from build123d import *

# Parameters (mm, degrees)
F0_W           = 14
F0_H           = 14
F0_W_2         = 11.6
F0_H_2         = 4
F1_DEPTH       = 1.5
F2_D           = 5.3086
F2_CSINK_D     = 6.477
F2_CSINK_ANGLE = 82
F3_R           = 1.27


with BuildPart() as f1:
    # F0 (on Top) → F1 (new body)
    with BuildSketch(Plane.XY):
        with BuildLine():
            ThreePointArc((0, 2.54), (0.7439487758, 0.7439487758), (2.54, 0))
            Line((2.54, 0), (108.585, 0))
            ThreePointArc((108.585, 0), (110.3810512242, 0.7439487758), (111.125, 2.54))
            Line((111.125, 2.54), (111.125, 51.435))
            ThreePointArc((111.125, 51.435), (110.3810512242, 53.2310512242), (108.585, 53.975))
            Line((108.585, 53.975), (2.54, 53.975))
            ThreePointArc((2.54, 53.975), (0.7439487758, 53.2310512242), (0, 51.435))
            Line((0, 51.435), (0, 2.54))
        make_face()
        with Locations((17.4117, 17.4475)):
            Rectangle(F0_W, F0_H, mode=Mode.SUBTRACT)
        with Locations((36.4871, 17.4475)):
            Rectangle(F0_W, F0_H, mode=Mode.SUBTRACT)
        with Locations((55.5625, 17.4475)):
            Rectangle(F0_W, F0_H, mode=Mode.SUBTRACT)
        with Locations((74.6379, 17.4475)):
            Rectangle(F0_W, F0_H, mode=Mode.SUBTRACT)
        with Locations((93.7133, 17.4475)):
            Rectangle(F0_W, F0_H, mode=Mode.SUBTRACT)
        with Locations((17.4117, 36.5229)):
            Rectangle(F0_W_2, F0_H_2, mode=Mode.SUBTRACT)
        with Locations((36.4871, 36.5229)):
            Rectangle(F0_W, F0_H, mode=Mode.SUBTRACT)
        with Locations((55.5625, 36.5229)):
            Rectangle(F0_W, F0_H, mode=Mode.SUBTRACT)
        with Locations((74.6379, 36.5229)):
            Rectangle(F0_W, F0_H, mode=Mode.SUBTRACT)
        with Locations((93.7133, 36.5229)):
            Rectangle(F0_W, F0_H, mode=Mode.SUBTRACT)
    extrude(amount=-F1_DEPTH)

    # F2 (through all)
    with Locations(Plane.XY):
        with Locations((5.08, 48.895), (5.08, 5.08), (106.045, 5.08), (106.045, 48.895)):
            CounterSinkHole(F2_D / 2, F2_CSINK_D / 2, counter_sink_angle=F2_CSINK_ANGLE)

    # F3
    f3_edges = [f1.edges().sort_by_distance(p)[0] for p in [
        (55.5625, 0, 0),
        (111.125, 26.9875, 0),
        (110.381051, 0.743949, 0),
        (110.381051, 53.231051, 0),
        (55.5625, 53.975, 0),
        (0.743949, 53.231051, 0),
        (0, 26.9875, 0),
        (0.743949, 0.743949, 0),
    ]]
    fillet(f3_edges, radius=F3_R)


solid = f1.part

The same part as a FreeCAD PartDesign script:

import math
import FreeCAD as App
import Part
import Sketcher

V = App.Vector
Q = App.Units.Quantity


def edges_at(feature, points):
    """Names of the edges that pass closest to the given points."""
    edges = feature.Shape.Edges
    near = lambda p: min(range(len(edges)), key=lambda i: edges[i].distToShape(Part.Vertex(*p))[0])
    return sorted({f"Edge{near(p) + 1}" for p in points})


def add_polygon(sketch, points):
    """Adds a closed chain of lines whose ends are joined by coincident constraints."""
    first, n = sketch.GeometryCount, len(points)
    for a, b in zip(points, points[1:] + points[:1]):
        sketch.addGeometry(Part.LineSegment(App.Vector(*a, 0), App.Vector(*b, 0)), False)
    for i in range(n):
        sketch.addConstraint(Sketcher.Constraint("Coincident", first + i, 2, first + (i + 1) % n, 1))

doc = App.newDocument("Part")
body = doc.addObject("PartDesign::Body", "Body")

# Sketch on XY plane
sketch1 = doc.addObject("Sketcher::SketchObject", "Sketch")
body.addObject(sketch1)
sketch1.AttachmentSupport = (doc.XY_Plane, [""])
sketch1.MapMode = "FlatFace"
sketch1.addGeometry(Part.ArcOfCircle(Part.Circle(V(2.5, 2.5, 0), V(0, 0, 1), 2.5), math.radians(180), math.radians(270)), False)  # 0
sketch1.addGeometry(Part.LineSegment(V(2.5, 0, 0), V(108.6, 0, 0)), False)  # 1
sketch1.addGeometry(Part.ArcOfCircle(Part.Circle(V(108.6, 2.5, 0), V(0, 0, 1), 2.5), math.radians(-90), math.radians(0)), False)  # 2
sketch1.addGeometry(Part.LineSegment(V(111.1, 2.5, 0), V(111.1, 51.4, 0)), False)  # 3
sketch1.addGeometry(Part.ArcOfCircle(Part.Circle(V(108.6, 51.4, 0), V(0, 0, 1), 2.5), math.radians(0), math.radians(90)), False)  # 4
sketch1.addGeometry(Part.LineSegment(V(108.6, 54, 0), V(2.5, 54, 0)), False)  # 5
sketch1.addGeometry(Part.ArcOfCircle(Part.Circle(V(2.5, 51.4, 0), V(0, 0, 1), 2.5), math.radians(90), math.radians(180)), False)  # 6
sketch1.addGeometry(Part.LineSegment(V(0, 51.4, 0), V(0, 2.5, 0)), False)  # 7
add_polygon(sketch1, [(24.4, 10.4), (10.4, 10.4), (10.4, 24.4), (24.4, 24.4)])  # lines 8-11
add_polygon(sketch1, [(43.5, 10.4), (29.5, 10.4), (29.5, 24.4), (43.5, 24.4)])  # lines 12-15
add_polygon(sketch1, [(62.6, 10.4), (48.6, 10.4), (48.6, 24.4), (62.6, 24.4)])  # lines 16-19
add_polygon(sketch1, [(81.6, 10.4), (67.6, 10.4), (67.6, 24.4), (81.6, 24.4)])  # lines 20-23
add_polygon(sketch1, [(100.7, 10.4), (86.7, 10.4), (86.7, 24.4), (100.7, 24.4)])  # lines 24-27
add_polygon(sketch1, [(23.2, 34.5), (11.6, 34.5), (11.6, 38.5), (23.2, 38.5)])  # lines 28-31
add_polygon(sketch1, [(43.5, 29.5), (29.5, 29.5), (29.5, 43.5), (43.5, 43.5)])  # lines 32-35
add_polygon(sketch1, [(62.6, 29.5), (48.6, 29.5), (48.6, 43.5), (62.6, 43.5)])  # lines 36-39
add_polygon(sketch1, [(81.6, 29.5), (67.6, 29.5), (67.6, 43.5), (81.6, 43.5)])  # lines 40-43
add_polygon(sketch1, [(100.7, 29.5), (86.7, 29.5), (86.7, 43.5), (100.7, 43.5)])  # lines 44-47
sketch1.addConstraint(Sketcher.Constraint("Tangent", 0, 2, 1, 1))
sketch1.addConstraint(Sketcher.Constraint("Tangent", 1, 2, 2, 1))
sketch1.addConstraint(Sketcher.Constraint("Tangent", 2, 2, 3, 1))
sketch1.addConstraint(Sketcher.Constraint("Tangent", 3, 2, 4, 1))
sketch1.addConstraint(Sketcher.Constraint("Tangent", 4, 2, 5, 1))
sketch1.addConstraint(Sketcher.Constraint("Tangent", 5, 2, 6, 1))
sketch1.addConstraint(Sketcher.Constraint("Tangent", 6, 2, 7, 1))
sketch1.addConstraint(Sketcher.Constraint("Tangent", 7, 2, 0, 1))
sketch1.addConstraint(Sketcher.Constraint("Horizontal", 1))
sketch1.addConstraint(Sketcher.Constraint("Vertical", 3))
sketch1.addConstraint(Sketcher.Constraint("Horizontal", 5))
sketch1.addConstraint(Sketcher.Constraint("Vertical", 7))
sketch1.addConstraint(Sketcher.Constraint("Horizontal", 8))
sketch1.addConstraint(Sketcher.Constraint("Vertical", 9))
sketch1.addConstraint(Sketcher.Constraint("Horizontal", 10))
sketch1.addConstraint(Sketcher.Constraint("Vertical", 11))
sketch1.addConstraint(Sketcher.Constraint("Horizontal", 12))
sketch1.addConstraint(Sketcher.Constraint("Vertical", 13))
sketch1.addConstraint(Sketcher.Constraint("Horizontal", 14))
sketch1.addConstraint(Sketcher.Constraint("Vertical", 15))
sketch1.addConstraint(Sketcher.Constraint("Horizontal", 16))
sketch1.addConstraint(Sketcher.Constraint("Vertical", 17))
sketch1.addConstraint(Sketcher.Constraint("Horizontal", 18))
sketch1.addConstraint(Sketcher.Constraint("Vertical", 19))
sketch1.addConstraint(Sketcher.Constraint("Horizontal", 20))
sketch1.addConstraint(Sketcher.Constraint("Vertical", 21))
sketch1.addConstraint(Sketcher.Constraint("Horizontal", 22))
sketch1.addConstraint(Sketcher.Constraint("Vertical", 23))
sketch1.addConstraint(Sketcher.Constraint("Horizontal", 24))
sketch1.addConstraint(Sketcher.Constraint("Vertical", 25))
sketch1.addConstraint(Sketcher.Constraint("Horizontal", 26))
sketch1.addConstraint(Sketcher.Constraint("Vertical", 27))
sketch1.addConstraint(Sketcher.Constraint("Horizontal", 28))
sketch1.addConstraint(Sketcher.Constraint("Vertical", 29))
sketch1.addConstraint(Sketcher.Constraint("Horizontal", 30))
sketch1.addConstraint(Sketcher.Constraint("Vertical", 31))
sketch1.addConstraint(Sketcher.Constraint("Horizontal", 32))
sketch1.addConstraint(Sketcher.Constraint("Vertical", 33))
sketch1.addConstraint(Sketcher.Constraint("Horizontal", 34))
sketch1.addConstraint(Sketcher.Constraint("Vertical", 35))
sketch1.addConstraint(Sketcher.Constraint("Horizontal", 36))
sketch1.addConstraint(Sketcher.Constraint("Vertical", 37))
sketch1.addConstraint(Sketcher.Constraint("Horizontal", 38))
sketch1.addConstraint(Sketcher.Constraint("Vertical", 39))
sketch1.addConstraint(Sketcher.Constraint("Horizontal", 40))
sketch1.addConstraint(Sketcher.Constraint("Vertical", 41))
sketch1.addConstraint(Sketcher.Constraint("Horizontal", 42))
sketch1.addConstraint(Sketcher.Constraint("Vertical", 43))
sketch1.addConstraint(Sketcher.Constraint("Horizontal", 44))
sketch1.addConstraint(Sketcher.Constraint("Vertical", 45))
sketch1.addConstraint(Sketcher.Constraint("Horizontal", 46))
sketch1.addConstraint(Sketcher.Constraint("Vertical", 47))
sketch1.addConstraint(Sketcher.Constraint("Equal", 0, 2))
sketch1.addConstraint(Sketcher.Constraint("Equal", 2, 4))
sketch1.addConstraint(Sketcher.Constraint("Equal", 4, 6))
sketch1.addConstraint(Sketcher.Constraint("PointOnObject", 0, 2, -1))
sketch1.addConstraint(Sketcher.Constraint("PointOnObject", 6, 2, -2))
sketch1.addConstraint(Sketcher.Constraint("Horizontal", 11, 2, 12, 2))
sketch1.addConstraint(Sketcher.Constraint("Horizontal", 10, 2, 13, 2))
sketch1.addConstraint(Sketcher.Constraint("Horizontal", 15, 2, 16, 2))
sketch1.addConstraint(Sketcher.Constraint("Horizontal", 14, 2, 17, 2))
sketch1.addConstraint(Sketcher.Constraint("Horizontal", 19, 2, 20, 2))
sketch1.addConstraint(Sketcher.Constraint("Horizontal", 18, 2, 21, 2))
sketch1.addConstraint(Sketcher.Constraint("Horizontal", 23, 2, 24, 2))
sketch1.addConstraint(Sketcher.Constraint("Horizontal", 22, 2, 25, 2))
sketch1.addConstraint(Sketcher.Constraint("Horizontal", 35, 2, 36, 2))
sketch1.addConstraint(Sketcher.Constraint("Horizontal", 34, 2, 37, 2))
sketch1.addConstraint(Sketcher.Constraint("Horizontal", 39, 2, 40, 2))
sketch1.addConstraint(Sketcher.Constraint("Horizontal", 38, 2, 41, 2))
sketch1.addConstraint(Sketcher.Constraint("Horizontal", 43, 2, 44, 2))
sketch1.addConstraint(Sketcher.Constraint("Horizontal", 42, 2, 45, 2))
sketch1.addConstraint(Sketcher.Constraint("Vertical", 13, 2, 32, 2))
sketch1.addConstraint(Sketcher.Constraint("Vertical", 15, 2, 34, 2))
sketch1.addConstraint(Sketcher.Constraint("Vertical", 17, 2, 36, 2))
sketch1.addConstraint(Sketcher.Constraint("Vertical", 19, 2, 38, 2))
sketch1.addConstraint(Sketcher.Constraint("Vertical", 21, 2, 40, 2))
sketch1.addConstraint(Sketcher.Constraint("Vertical", 23, 2, 42, 2))
sketch1.addConstraint(Sketcher.Constraint("Vertical", 25, 2, 44, 2))
sketch1.addConstraint(Sketcher.Constraint("Vertical", 27, 2, 46, 2))
sketch1.addConstraint(Sketcher.Constraint("Equal", 10, 12))
sketch1.addConstraint(Sketcher.Constraint("Equal", 14, 16))
sketch1.addConstraint(Sketcher.Constraint("Equal", 18, 20))
sketch1.addConstraint(Sketcher.Constraint("Equal", 22, 24))
sketch1.addConstraint(Sketcher.Constraint("Equal", 46, 9))
sketch1.addConstraint(Sketcher.Constraint("Equal", 27, 33))
sketch1.addConstraint(Sketcher.Constraint("Radius", 0, Q("0.1 in")))
sketch1.addConstraint(Sketcher.Constraint("DistanceX", 1, 1, 1, 2, Q("4.175 in")))
sketch1.addConstraint(Sketcher.Constraint("DistanceY", 3, 1, 3, 2, Q("1.925 in")))
sketch1.addConstraint(Sketcher.Constraint("DistanceY", 9, 2, 6, 3, Q("1.0625 in")))
sketch1.addConstraint(Sketcher.Constraint("DistanceX", 8, 2, 12, 2, Q("0.751 in")))
sketch1.addConstraint(Sketcher.Constraint("DistanceX", 12, 2, 16, 2, Q("0.751 in")))
sketch1.addConstraint(Sketcher.Constraint("DistanceX", 16, 2, 20, 2, Q("0.751 in")))
sketch1.addConstraint(Sketcher.Constraint("DistanceX", 20, 2, 24, 2, Q("0.751 in")))
sketch1.addConstraint(Sketcher.Constraint("DistanceY", 13, 2, 33, 2, Q("0.751 in")))
sketch1.addConstraint(Sketcher.Constraint("DistanceX", 8, 2, 8, 1, Q("14 mm")))
sketch1.addConstraint(Sketcher.Constraint("DistanceX", 28, 2, 28, 1, Q("11.6 mm")))
sketch1.addConstraint(Sketcher.Constraint("DistanceY", 29, 1, 29, 2, Q("4 mm")))
sketch1.addConstraint(Sketcher.Constraint("DistanceX", -1, 1, 8, 2, Q("10.4117 mm")))
sketch1.addConstraint(Sketcher.Constraint("DistanceX", -1, 1, 28, 2, Q("11.6117 mm")))
sketch1.addConstraint(Sketcher.Constraint("DistanceY", -1, 1, 28, 2, Q("34.5229 mm")))
pad1 = doc.addObject("PartDesign::Pad", "Pad")
body.addObject(pad1)
pad1.Profile = sketch1
pad1.Length = 1.5
pad1.Reversed = True

# Sketch on XY plane
sketch2 = doc.addObject("Sketcher::SketchObject", "Sketch001")
body.addObject(sketch2)
sketch2.AttachmentSupport = (doc.XY_Plane, [""])
sketch2.MapMode = "FlatFace"
sketch2.addGeometry(Part.Circle(V(5.1, 48.9, 0), V(0, 0, 1), 2.7), False)
sketch2.addGeometry(Part.Circle(V(5.1, 5.1, 0), V(0, 0, 1), 2.7), False)
sketch2.addGeometry(Part.Circle(V(106, 5.1, 0), V(0, 0, 1), 2.7), False)
sketch2.addGeometry(Part.Circle(V(106, 48.9, 0), V(0, 0, 1), 2.7), False)
sketch2.addConstraint(Sketcher.Constraint("Equal", 0, 1))
sketch2.addConstraint(Sketcher.Constraint("Equal", 1, 2))
sketch2.addConstraint(Sketcher.Constraint("Equal", 2, 3))
sketch2.addConstraint(Sketcher.Constraint("Horizontal", 1, 3, 2, 3))
sketch2.addConstraint(Sketcher.Constraint("Horizontal", 0, 3, 3, 3))
sketch2.addConstraint(Sketcher.Constraint("Vertical", 0, 3, 1, 3))
sketch2.addConstraint(Sketcher.Constraint("Vertical", 2, 3, 3, 3))
sketch2.addConstraint(Sketcher.Constraint("Diameter", 0, Q("0.209 in")))
sketch2.addConstraint(Sketcher.Constraint("DistanceX", -1, 1, 0, 3, Q("0.2 in")))
sketch2.addConstraint(Sketcher.Constraint("DistanceY", -1, 1, 1, 3, Q("0.2 in")))
sketch2.addConstraint(Sketcher.Constraint("DistanceY", -1, 1, 0, 3, Q("1.925 in")))
sketch2.addConstraint(Sketcher.Constraint("DistanceX", -1, 1, 2, 3, Q("4.175 in")))
doc.recompute()
hole = doc.addObject("PartDesign::Hole", "Hole")
body.addObject(hole)
hole.Profile = sketch2
hole.ThreadType = "None"
hole.Diameter = Q("0.209 in")
hole.DepthType = "ThroughAll"
hole.HoleCutType = "Countersink"
hole.HoleCutDiameter = Q("0.255 in")
hole.HoleCutCountersinkAngle = 82
doc.recompute()

fillet = doc.addObject("PartDesign::Fillet", "Fillet")
body.addObject(fillet)
fillet.Base = (hole, edges_at(hole, [
    (55.562, 0, 0),
    (111.125, 26.988, 0),
    (110.381, 0.744, 0),
    (110.381, 53.231, 0),
    (55.562, 53.975, 0),
    (0.744, 53.231, 0),
    (0, 26.988, 0),
    (0.744, 0.744, 0),
]))
fillet.Radius = Q("0.05 in")

doc.recompute()
